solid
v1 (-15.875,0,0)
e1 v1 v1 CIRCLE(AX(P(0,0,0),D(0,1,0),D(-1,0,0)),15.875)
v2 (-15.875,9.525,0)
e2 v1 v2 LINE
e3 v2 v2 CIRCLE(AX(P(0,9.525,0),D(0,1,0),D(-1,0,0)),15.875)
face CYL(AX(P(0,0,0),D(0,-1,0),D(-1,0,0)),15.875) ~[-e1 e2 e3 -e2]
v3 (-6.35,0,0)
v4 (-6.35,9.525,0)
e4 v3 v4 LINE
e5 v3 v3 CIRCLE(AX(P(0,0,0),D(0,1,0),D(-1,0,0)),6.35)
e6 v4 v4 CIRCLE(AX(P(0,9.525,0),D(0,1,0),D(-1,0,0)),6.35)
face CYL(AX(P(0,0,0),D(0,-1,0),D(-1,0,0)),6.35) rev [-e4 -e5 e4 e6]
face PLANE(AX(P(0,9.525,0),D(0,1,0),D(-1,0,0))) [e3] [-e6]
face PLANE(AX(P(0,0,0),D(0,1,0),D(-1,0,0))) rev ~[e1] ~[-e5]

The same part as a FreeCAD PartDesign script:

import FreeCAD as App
import Part
import Sketcher

V = App.Vector
Q = App.Units.Quantity

doc = App.newDocument("Part")
body = doc.addObject("PartDesign::Body", "Body")

# Sketch on XZ plane
sketch1 = doc.addObject("Sketcher::SketchObject", "Sketch")
body.addObject(sketch1)
sketch1.AttachmentSupport = (doc.XZ_Plane, [""])
sketch1.MapMode = "FlatFace"
sketch1.addGeometry(Part.Circle(V(0, 0, 0), V(0, 0, 1), 16), False)
sketch1.addGeometry(Part.Circle(V(0, 0, 0), V(0, 0, 1), 6), False)
sketch1.addConstraint(Sketcher.Constraint("Coincident", 0, 3, -1, 1))
sketch1.addConstraint(Sketcher.Constraint("Coincident", 1, 3, -1, 1))
sketch1.addConstraint(Sketcher.Constraint("Diameter", 1, Q("0.5 in")))
sketch1.addConstraint(Sketcher.Constraint("Diameter", 0, Q("1.25 in")))
pad1 = doc.addObject("PartDesign::Pad", "Pad")
body.addObject(pad1)
pad1.Profile = sketch1
pad1.Length = Q("0.375 in")
pad1.Reversed = True

doc.recompute()
